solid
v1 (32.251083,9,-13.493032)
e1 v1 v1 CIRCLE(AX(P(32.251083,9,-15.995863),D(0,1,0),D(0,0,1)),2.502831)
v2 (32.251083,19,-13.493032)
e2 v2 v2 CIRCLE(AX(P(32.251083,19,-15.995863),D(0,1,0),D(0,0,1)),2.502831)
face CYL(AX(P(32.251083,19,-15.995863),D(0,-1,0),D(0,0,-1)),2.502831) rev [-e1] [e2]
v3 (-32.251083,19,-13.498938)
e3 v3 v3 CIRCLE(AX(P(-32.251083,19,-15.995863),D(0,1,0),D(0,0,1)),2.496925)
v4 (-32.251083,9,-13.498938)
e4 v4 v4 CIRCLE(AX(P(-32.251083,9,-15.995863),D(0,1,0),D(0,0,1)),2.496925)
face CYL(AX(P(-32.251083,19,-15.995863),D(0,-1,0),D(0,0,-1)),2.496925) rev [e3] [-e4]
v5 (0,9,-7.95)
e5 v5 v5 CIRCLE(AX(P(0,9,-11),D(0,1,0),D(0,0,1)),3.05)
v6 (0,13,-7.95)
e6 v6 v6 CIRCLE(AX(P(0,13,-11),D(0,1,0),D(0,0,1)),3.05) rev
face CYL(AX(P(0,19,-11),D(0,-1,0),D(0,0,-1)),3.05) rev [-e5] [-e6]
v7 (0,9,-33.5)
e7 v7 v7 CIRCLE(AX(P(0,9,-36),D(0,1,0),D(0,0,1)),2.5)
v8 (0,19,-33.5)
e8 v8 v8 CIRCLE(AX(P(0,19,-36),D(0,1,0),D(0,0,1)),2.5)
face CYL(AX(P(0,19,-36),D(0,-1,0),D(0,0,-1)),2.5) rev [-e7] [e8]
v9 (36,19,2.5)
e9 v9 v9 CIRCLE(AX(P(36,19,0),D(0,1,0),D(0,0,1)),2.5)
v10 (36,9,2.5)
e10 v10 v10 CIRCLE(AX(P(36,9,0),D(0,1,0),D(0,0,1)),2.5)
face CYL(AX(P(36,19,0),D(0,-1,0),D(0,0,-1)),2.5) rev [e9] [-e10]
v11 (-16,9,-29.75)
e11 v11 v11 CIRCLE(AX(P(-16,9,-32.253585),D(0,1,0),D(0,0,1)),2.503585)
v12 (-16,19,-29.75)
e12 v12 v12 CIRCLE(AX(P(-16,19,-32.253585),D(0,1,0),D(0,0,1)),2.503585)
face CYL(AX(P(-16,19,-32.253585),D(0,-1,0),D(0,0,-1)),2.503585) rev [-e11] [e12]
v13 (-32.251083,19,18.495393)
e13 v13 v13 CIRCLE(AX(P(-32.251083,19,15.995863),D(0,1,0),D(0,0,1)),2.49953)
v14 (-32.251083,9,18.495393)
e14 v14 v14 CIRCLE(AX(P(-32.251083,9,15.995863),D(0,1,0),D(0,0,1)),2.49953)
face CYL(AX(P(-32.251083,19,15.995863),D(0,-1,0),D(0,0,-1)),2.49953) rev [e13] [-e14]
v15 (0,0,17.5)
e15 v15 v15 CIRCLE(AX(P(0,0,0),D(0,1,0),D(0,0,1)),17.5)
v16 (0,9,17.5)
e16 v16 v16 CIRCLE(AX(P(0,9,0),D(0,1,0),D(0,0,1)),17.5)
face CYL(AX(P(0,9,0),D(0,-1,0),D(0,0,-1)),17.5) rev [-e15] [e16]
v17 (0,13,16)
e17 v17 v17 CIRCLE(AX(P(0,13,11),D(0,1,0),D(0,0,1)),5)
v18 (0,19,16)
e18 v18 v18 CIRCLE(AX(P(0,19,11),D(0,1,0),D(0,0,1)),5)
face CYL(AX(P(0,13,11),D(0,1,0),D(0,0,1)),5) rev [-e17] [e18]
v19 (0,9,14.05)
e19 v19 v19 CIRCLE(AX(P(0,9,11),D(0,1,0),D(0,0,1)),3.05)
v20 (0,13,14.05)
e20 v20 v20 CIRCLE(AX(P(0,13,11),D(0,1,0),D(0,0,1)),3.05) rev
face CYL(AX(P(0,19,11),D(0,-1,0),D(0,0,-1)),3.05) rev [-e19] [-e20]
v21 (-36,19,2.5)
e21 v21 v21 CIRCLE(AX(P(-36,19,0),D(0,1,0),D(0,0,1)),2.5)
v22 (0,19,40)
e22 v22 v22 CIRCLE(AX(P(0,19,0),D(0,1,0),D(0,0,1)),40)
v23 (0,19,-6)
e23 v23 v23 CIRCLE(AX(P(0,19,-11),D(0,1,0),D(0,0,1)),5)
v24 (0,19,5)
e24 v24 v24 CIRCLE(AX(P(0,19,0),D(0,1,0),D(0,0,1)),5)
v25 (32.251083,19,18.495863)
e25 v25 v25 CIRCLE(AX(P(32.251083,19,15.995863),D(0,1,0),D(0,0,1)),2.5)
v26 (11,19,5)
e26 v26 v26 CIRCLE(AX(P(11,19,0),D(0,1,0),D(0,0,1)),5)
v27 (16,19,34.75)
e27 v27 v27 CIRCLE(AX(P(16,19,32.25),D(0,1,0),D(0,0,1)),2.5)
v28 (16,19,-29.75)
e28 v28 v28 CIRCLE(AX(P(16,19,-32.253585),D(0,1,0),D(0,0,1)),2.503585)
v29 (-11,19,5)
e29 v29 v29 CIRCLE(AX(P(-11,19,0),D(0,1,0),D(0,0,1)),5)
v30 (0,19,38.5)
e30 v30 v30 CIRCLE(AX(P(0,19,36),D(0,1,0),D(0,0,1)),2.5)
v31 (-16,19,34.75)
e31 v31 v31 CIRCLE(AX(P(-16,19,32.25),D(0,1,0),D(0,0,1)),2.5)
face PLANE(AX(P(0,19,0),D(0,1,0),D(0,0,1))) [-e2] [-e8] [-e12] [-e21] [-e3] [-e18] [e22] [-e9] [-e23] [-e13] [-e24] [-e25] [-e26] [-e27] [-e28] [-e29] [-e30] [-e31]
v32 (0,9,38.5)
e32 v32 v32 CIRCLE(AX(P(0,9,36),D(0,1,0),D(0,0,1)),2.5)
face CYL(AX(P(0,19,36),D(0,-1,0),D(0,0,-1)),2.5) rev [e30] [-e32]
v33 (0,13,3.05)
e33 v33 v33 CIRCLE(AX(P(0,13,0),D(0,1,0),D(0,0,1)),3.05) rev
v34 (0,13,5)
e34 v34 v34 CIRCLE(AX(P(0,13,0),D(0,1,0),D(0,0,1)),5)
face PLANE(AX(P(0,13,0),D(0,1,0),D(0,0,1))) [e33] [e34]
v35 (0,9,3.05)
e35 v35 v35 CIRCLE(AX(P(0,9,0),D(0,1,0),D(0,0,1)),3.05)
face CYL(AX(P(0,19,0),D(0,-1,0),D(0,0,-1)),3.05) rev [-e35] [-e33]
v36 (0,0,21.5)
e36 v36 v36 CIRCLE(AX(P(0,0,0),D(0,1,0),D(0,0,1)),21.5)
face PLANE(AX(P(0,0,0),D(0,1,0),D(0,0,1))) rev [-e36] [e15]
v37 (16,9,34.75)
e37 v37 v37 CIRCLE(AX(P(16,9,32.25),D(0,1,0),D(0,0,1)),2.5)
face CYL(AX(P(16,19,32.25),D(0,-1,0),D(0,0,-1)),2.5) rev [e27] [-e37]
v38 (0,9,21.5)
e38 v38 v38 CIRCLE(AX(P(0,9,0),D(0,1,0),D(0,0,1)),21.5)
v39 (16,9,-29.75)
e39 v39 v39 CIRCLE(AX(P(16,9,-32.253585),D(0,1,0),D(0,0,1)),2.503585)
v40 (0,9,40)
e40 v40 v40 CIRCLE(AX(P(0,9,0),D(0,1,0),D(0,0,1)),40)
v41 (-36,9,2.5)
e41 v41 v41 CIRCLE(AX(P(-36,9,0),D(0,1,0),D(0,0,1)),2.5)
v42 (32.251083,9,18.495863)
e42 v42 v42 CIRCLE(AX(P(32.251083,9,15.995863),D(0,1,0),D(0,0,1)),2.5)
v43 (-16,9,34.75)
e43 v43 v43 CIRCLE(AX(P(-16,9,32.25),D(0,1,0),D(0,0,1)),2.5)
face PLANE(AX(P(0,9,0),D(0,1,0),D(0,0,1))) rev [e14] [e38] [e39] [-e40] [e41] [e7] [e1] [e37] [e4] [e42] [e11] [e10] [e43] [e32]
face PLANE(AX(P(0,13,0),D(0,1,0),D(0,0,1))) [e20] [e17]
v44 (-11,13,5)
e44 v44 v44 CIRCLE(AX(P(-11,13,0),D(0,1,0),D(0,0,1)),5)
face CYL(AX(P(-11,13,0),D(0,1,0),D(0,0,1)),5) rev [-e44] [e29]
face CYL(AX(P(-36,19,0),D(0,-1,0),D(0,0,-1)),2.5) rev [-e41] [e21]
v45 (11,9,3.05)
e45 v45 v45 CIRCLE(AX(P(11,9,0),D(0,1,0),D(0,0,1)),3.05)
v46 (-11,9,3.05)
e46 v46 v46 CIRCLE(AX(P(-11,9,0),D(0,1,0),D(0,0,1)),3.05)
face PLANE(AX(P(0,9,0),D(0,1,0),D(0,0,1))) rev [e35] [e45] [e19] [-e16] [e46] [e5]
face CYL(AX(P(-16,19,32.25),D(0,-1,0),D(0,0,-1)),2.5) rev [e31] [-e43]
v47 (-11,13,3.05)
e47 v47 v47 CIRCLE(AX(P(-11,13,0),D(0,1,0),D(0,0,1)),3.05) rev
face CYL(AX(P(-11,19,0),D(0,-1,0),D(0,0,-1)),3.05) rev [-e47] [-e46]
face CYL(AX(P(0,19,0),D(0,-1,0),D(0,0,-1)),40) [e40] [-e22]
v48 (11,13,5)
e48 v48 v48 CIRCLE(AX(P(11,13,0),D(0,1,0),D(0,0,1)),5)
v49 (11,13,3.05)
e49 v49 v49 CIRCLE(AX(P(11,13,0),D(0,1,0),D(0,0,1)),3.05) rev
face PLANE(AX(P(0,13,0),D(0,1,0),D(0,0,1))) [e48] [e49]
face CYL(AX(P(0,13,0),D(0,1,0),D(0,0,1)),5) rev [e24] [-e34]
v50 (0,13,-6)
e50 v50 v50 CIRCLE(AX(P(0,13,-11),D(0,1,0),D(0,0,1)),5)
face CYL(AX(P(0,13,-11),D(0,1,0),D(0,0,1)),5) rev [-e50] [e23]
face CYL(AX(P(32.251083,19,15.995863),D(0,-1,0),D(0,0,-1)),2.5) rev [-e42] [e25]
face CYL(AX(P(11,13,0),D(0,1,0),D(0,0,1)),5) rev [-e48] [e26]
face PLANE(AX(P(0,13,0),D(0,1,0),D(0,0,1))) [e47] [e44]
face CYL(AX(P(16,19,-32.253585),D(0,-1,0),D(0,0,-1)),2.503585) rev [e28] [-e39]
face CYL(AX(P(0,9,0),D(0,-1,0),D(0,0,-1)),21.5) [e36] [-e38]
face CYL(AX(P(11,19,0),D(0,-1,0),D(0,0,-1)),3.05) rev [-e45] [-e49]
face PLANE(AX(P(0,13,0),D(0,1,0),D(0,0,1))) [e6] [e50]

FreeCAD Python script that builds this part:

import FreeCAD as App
import Part
import Sketcher
Q = App.Units.Quantity

doc = App.newDocument("Part")
body = doc.addObject("PartDesign::Body", "Body")

# Sketch on XZ plane
sketch1 = body.newObject("Sketcher::SketchObject", "Sketch")
sketch1.AttachmentSupport = (doc.getObject("XZ_Plane"), [""])
sketch1.MapMode = "FlatFace"
sketch1.addGeometry(Part.Circle(App.Vector(0, 0, 0), App.Vector(0, 0, 1), 22), False)
sketch1.addGeometry(Part.Circle(App.Vector(0, 0, 0), App.Vector(0, 0, 1), 18), False)
sketch1.addConstraint(Sketcher.Constraint("Coincident", 0, 3, -1, 1))
sketch1.addConstraint(Sketcher.Constraint("Coincident", 1, 3, -1, 1))
sketch1.addConstraint(Sketcher.Constraint("Diameter", 0, Q("43 mm")))
sketch1.addConstraint(Sketcher.Constraint("Diameter", 1, Q("35 mm")))
pad1 = body.newObject("PartDesign::Pad", "Pad")
pad1.Profile = sketch1
pad1.Length = 9
pad1.Reversed = True

# Sketch on XZ plane
sketch2 = body.newObject("Sketcher::SketchObject", "Sketch001")
sketch2.AttachmentSupport = (doc.getObject("XZ_Plane"), [""])
sketch2.MapMode = "FlatFace"
sketch2.AttachmentOffset = App.Placement(App.Vector(0, 0, -9), App.Rotation())
sketch2.addGeometry(Part.Circle(App.Vector(0, 0, 0), App.Vector(0, 0, 1), 40), False)
sketch2.addGeometry(Part.Circle(App.Vector(-32.3, -16, 0), App.Vector(0, 0, 1), 2.5), False)
sketch2.addGeometry(Part.Circle(App.Vector(-16, -32.3, 0), App.Vector(0, 0, 1), 2.5), False)
sketch2.addGeometry(Part.Circle(App.Vector(0, -36, 0), App.Vector(0, 0, 1), 2.5), False)
sketch2.addGeometry(Part.Circle(App.Vector(0, -11, 0), App.Vector(0, 0, 1), 3), False)
sketch2.addGeometry(Part.Circle(App.Vector(-36, 0, 0), App.Vector(0, 0, 1), 2.5), False)
sketch2.addGeometry(Part.Circle(App.Vector(-32.3, 16, 0), App.Vector(0, 0, 1), 2.5), False)
sketch2.addGeometry(Part.Circle(App.Vector(-11, 0, 0), App.Vector(0, 0, 1), 3), False)
sketch2.addGeometry(Part.Circle(App.Vector(-16, 32.2, 0), App.Vector(0, 0, 1), 2.5), False)
sketch2.addGeometry(Part.Circle(App.Vector(16, -32.3, 0), App.Vector(0, 0, 1), 2.5), False)
sketch2.addGeometry(Part.Circle(App.Vector(32.3, -16, 0), App.Vector(0, 0, 1), 2.5), False)
sketch2.addGeometry(Part.Circle(App.Vector(36, 0, 0), App.Vector(0, 0, 1), 2.5), False)
sketch2.addGeometry(Part.Circle(App.Vector(0, 0, 0), App.Vector(0, 0, 1), 3), False)
sketch2.addGeometry(Part.Circle(App.Vector(0, 11, 0), App.Vector(0, 0, 1), 3), False)
sketch2.addGeometry(Part.Circle(App.Vector(11, 0, 0), App.Vector(0, 0, 1), 3), False)
sketch2.addGeometry(Part.Circle(App.Vector(0, 36, 0), App.Vector(0, 0, 1), 2.5), False)
sketch2.addGeometry(Part.Circle(App.Vector(16, 32.2, 0), App.Vector(0, 0, 1), 2.5), False)
sketch2.addGeometry(Part.Circle(App.Vector(32.3, 16, 0), App.Vector(0, 0, 1), 2.5), False)
sketch2.addConstraint(Sketcher.Constraint("Coincident", 0, 3, -1, 1))
sketch2.addConstraint(Sketcher.Constraint("Coincident", 12, 3, -1, 1))
sketch2.addConstraint(Sketcher.Constraint("Equal", 3, 5))
sketch2.addConstraint(Sketcher.Constraint("Equal", 4, 7))
sketch2.addConstraint(Sketcher.Constraint("Equal", 5, 8))
sketch2.addConstraint(Sketcher.Constraint("Equal", 2, 9))
sketch2.addConstraint(Sketcher.Constraint("Equal", 8, 11))
sketch2.addConstraint(Sketcher.Constraint("Equal", 7, 12))
sketch2.addConstraint(Sketcher.Constraint("Equal", 12, 13))
sketch2.addConstraint(Sketcher.Constraint("Equal", 13, 14))
sketch2.addConstraint(Sketcher.Constraint("Equal", 11, 15))
sketch2.addConstraint(Sketcher.Constraint("Equal", 15, 16))
sketch2.addConstraint(Sketcher.Constraint("Equal", 16, 17))
sketch2.addConstraint(Sketcher.Constraint("Symmetric", 6, 3, 10, 3, -1, 1))
sketch2.addConstraint(Sketcher.Constraint("Symmetric", 5, 3, 11, 3, -1, 1))
sketch2.addConstraint(Sketcher.Constraint("Symmetric", 4, 3, 13, 3, -1, 1))
sketch2.addConstraint(Sketcher.Constraint("Symmetric", 7, 3, 14, 3, -1, 1))
sketch2.addConstraint(Sketcher.Constraint("Symmetric", 3, 3, 15, 3, -1, 1))
sketch2.addConstraint(Sketcher.Constraint("Symmetric", 1, 3, 17, 3, -1, 1))
sketch2.addConstraint(Sketcher.Constraint("Symmetric", 2, 3, 9, 3, -2))
sketch2.addConstraint(Sketcher.Constraint("Symmetric", 1, 3, 10, 3, -2))
sketch2.addConstraint(Sketcher.Constraint("Symmetric", 8, 3, 16, 3, -2))
sketch2.addConstraint(Sketcher.Constraint("PointOnObject", 3, 3, -2))
sketch2.addConstraint(Sketcher.Constraint("PointOnObject", 4, 3, -2))
sketch2.addConstraint(Sketcher.Constraint("PointOnObject", 5, 3, -1))
sketch2.addConstraint(Sketcher.Constraint("PointOnObject", 7, 3, -1))
sketch2.addConstraint(Sketcher.Constraint("Vertical", 2, 3, 8, 3))
sketch2.addConstraint(Sketcher.Constraint("Diameter", 0, Q("80 mm")))
sketch2.addConstraint(Sketcher.Constraint("Diameter", 3, Q("5 mm")))
sketch2.addConstraint(Sketcher.Constraint("Diameter", 4, Q("6.1 mm")))
sketch2.addConstraint(Sketcher.Constraint("DistanceX", 2, 3, -1, 1, Q("16 mm")))
sketch2.addConstraint(Sketcher.Constraint("DistanceY", 3, 3, -1, 1, Q("36 mm")))
sketch2.addConstraint(Sketcher.Constraint("DistanceY", 4, 3, -1, 1, Q("11 mm")))
sketch2.addConstraint(Sketcher.Constraint("DistanceX", 5, 3, -1, 1, Q("36 mm")))
sketch2.addConstraint(Sketcher.Constraint("DistanceX", 7, 3, -1, 1, Q("11 mm")))
sketch2.addConstraint(Sketcher.Constraint("Diameter", 1, Q("4.99385 mm")))
sketch2.addConstraint(Sketcher.Constraint("Diameter", 2, Q("5.00717 mm")))
sketch2.addConstraint(Sketcher.Constraint("Diameter", 6, Q("4.99906 mm")))
sketch2.addConstraint(Sketcher.Constraint("DistanceY", -1, 1, 8, 3, Q("32.25 mm")))
sketch2.addConstraint(Sketcher.Constraint("Diameter", 10, Q("5.005662 mm")))
sketch2.addConstraint(Sketcher.Constraint("DistanceY", 2, 3, 1, 3, Q("16.257722 mm")))
sketch2.addConstraint(Sketcher.Constraint("DistanceY", 2, 3, 6, 3, Q("48.249448 mm")))
sketch2.addConstraint(Sketcher.Constraint("DistanceX", 1, 3, -1, 1, Q("32.251083 mm")))
pad2 = body.newObject("PartDesign::Pad", "Pad001")
pad2.Profile = sketch2
pad2.Length = 10
pad2.Reversed = True

# Sketch on XZ plane
sketch3 = body.newObject("Sketcher::SketchObject", "Sketch002")
sketch3.AttachmentSupport = (doc.getObject("XZ_Plane"), [""])
sketch3.MapMode = "FlatFace"
sketch3.AttachmentOffset = App.Placement(App.Vector(0, 0, -13), App.Rotation())
sketch3.addGeometry(Part.Circle(App.Vector(0, -11, 0), App.Vector(0, 0, 1), 5), False)
sketch3.addGeometry(Part.Circle(App.Vector(0, -11, 0), App.Vector(0, 0, 1), 3), False)
sketch3.addGeometry(Part.Circle(App.Vector(-11, 0, 0), App.Vector(0, 0, 1), 5), False)
sketch3.addGeometry(Part.Circle(App.Vector(-11, 0, 0), App.Vector(0, 0, 1), 3), False)
sketch3.addGeometry(Part.Circle(App.Vector(0, 0, 0), App.Vector(0, 0, 1), 5), False)
sketch3.addGeometry(Part.Circle(App.Vector(0, 0, 0), App.Vector(0, 0, 1), 3), False)
sketch3.addGeometry(Part.Circle(App.Vector(11, 0, 0), App.Vector(0, 0, 1), 5), False)
sketch3.addGeometry(Part.Circle(App.Vector(11, 0, 0), App.Vector(0, 0, 1), 3), False)
sketch3.addGeometry(Part.Circle(App.Vector(0, 11, 0), App.Vector(0, 0, 1), 5), False)
sketch3.addGeometry(Part.Circle(App.Vector(0, 11, 0), App.Vector(0, 0, 1), 3), False)
sketch3.addConstraint(Sketcher.Constraint("Coincident", 4, 3, -1, 1))
sketch3.addConstraint(Sketcher.Constraint("Coincident", 5, 3, -1, 1))
sketch3.addConstraint(Sketcher.Constraint("Coincident", 1, 3, 0, 3))
sketch3.addConstraint(Sketcher.Constraint("Coincident", 3, 3, 2, 3))
sketch3.addConstraint(Sketcher.Constraint("Coincident", 7, 3, 6, 3))
sketch3.addConstraint(Sketcher.Constraint("Coincident", 9, 3, 8, 3))
sketch3.addConstraint(Sketcher.Constraint("Equal", 0, 2))
sketch3.addConstraint(Sketcher.Constraint("Equal", 1, 3))
sketch3.addConstraint(Sketcher.Constraint("Equal", 2, 4))
sketch3.addConstraint(Sketcher.Constraint("Equal", 3, 5))
sketch3.addConstraint(Sketcher.Constraint("Equal", 4, 6))
sketch3.addConstraint(Sketcher.Constraint("Equal", 5, 7))
sketch3.addConstraint(Sketcher.Constraint("Equal", 6, 8))
sketch3.addConstraint(Sketcher.Constraint("Equal", 7, 9))
sketch3.addConstraint(Sketcher.Constraint("Symmetric", 2, 3, 6, 3, -1, 1))
sketch3.addConstraint(Sketcher.Constraint("Symmetric", 0, 3, 8, 3, -1, 1))
sketch3.addConstraint(Sketcher.Constraint("PointOnObject", 0, 3, -2))
sketch3.addConstraint(Sketcher.Constraint("PointOnObject", 2, 3, -1))
sketch3.addConstraint(Sketcher.Constraint("Diameter", 0, Q("10 mm")))
sketch3.addConstraint(Sketcher.Constraint("Diameter", 1, Q("6.1 mm")))
sketch3.addConstraint(Sketcher.Constraint("DistanceY", 0, 3, -1, 1, Q("11 mm")))
sketch3.addConstraint(Sketcher.Constraint("DistanceX", 2, 3, -1, 1, Q("11 mm")))
pocket1 = body.newObject("PartDesign::Pocket", "Pocket")
pocket1.Profile = sketch3
pocket1.Length = 6

doc.recompute()
